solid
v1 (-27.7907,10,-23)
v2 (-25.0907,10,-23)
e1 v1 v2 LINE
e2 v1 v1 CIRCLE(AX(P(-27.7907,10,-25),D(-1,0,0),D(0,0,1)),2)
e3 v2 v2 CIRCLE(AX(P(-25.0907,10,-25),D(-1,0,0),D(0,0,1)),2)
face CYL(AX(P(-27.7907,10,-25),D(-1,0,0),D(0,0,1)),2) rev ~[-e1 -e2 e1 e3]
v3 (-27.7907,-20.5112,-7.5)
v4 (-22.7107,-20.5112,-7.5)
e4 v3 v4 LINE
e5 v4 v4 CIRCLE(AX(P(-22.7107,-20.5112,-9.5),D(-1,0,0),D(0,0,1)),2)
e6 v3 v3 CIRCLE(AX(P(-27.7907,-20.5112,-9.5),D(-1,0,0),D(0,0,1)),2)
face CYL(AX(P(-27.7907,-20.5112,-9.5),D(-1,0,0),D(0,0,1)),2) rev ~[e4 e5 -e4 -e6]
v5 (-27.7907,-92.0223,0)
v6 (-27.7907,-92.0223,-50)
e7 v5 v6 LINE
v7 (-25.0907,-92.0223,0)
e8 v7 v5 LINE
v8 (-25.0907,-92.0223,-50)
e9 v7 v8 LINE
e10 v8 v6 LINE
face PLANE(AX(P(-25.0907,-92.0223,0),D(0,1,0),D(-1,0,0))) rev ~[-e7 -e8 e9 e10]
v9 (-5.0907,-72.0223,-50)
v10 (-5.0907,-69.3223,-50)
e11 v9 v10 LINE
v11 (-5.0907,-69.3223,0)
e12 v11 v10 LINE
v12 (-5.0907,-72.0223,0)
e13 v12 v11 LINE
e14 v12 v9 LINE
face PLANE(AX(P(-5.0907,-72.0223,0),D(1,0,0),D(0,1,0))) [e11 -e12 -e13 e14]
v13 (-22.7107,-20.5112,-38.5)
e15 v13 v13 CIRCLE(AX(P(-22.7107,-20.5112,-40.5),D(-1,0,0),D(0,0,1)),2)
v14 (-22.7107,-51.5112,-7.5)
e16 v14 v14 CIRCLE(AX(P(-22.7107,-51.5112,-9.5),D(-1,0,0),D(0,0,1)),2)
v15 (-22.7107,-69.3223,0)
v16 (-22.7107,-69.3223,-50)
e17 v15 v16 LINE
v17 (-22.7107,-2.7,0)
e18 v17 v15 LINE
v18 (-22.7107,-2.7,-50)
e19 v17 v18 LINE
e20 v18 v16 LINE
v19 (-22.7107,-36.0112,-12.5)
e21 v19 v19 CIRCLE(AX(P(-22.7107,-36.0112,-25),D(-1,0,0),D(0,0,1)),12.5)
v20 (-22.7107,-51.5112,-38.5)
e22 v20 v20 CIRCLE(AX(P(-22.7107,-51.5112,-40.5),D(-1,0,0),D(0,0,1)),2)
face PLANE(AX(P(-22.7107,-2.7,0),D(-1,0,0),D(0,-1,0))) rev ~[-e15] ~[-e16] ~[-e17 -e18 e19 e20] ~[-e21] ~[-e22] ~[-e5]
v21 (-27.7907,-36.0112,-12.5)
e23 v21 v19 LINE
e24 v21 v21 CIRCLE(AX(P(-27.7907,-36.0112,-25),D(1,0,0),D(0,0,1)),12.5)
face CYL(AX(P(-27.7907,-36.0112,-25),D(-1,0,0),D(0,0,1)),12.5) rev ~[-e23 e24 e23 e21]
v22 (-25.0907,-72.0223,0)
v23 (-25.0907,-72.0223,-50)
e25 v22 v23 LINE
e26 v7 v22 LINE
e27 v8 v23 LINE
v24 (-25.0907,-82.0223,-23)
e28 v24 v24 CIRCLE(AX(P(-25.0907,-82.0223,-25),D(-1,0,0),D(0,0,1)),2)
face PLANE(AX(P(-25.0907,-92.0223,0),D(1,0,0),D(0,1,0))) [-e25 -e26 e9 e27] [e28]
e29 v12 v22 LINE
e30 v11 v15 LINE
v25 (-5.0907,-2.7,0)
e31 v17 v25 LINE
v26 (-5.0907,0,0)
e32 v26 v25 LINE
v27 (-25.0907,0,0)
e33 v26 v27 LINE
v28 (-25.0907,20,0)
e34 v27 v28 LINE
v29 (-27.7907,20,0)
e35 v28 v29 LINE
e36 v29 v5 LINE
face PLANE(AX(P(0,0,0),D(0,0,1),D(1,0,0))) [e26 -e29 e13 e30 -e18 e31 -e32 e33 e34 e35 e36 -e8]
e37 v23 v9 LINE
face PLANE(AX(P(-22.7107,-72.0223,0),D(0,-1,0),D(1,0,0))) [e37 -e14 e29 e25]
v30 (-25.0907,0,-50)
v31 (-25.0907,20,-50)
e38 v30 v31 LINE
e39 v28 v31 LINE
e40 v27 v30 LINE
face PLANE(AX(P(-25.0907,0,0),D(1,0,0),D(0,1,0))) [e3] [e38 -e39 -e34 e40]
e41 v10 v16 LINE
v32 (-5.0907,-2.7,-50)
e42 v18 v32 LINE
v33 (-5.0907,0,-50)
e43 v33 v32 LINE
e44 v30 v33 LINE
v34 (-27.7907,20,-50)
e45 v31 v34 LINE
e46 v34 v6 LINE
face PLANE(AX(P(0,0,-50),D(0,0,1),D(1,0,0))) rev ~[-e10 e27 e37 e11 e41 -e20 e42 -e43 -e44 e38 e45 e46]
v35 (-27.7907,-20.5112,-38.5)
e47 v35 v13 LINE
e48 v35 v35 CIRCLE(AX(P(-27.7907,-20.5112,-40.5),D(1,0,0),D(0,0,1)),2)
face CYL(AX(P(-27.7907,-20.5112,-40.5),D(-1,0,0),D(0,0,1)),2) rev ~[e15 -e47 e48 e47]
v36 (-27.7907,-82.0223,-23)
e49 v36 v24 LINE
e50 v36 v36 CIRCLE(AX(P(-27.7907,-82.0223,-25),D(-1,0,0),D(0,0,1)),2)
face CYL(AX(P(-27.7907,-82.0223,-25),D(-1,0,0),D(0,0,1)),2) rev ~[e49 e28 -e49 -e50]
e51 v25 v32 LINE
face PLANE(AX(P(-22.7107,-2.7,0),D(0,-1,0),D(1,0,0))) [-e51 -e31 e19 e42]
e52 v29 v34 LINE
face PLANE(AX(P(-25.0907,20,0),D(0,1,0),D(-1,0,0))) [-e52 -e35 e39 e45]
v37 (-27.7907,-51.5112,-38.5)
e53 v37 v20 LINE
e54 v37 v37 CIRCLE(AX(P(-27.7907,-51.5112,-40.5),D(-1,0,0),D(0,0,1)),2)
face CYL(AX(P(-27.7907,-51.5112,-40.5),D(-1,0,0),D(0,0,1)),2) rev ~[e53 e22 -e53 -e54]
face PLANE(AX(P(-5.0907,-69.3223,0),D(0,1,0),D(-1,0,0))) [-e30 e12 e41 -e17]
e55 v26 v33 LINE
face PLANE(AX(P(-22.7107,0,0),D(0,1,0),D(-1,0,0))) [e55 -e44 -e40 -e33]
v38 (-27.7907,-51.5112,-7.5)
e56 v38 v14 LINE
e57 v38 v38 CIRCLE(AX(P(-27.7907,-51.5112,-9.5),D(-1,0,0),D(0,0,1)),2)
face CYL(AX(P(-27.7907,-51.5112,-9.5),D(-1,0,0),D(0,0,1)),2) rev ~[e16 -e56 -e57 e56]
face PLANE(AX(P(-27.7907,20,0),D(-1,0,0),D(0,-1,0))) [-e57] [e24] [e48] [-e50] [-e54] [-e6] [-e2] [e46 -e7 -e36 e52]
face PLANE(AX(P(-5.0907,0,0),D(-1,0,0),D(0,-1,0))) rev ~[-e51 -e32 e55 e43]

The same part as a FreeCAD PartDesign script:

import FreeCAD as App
import Part
import Sketcher

V = App.Vector


def add_polygon(sketch, points):
    """Adds a closed chain of lines whose ends are joined by coincident constraints."""
    first, n = sketch.GeometryCount, len(points)
    for a, b in zip(points, points[1:] + points[:1]):
        sketch.addGeometry(Part.LineSegment(App.Vector(*a, 0), App.Vector(*b, 0)), False)
    for i in range(n):
        sketch.addConstraint(Sketcher.Constraint("Coincident", first + i, 2, first + (i + 1) % n, 1))

doc = App.newDocument("Part")
params = doc.addObject("Spreadsheet::Sheet", "Params")
for row, (alias, value) in enumerate([
    ("sketch1_width", "20 mm"),
    ("sketch1_width2", "2.7 mm"),
    ("sketch1_width3", "17.62 mm"),
    ("pad1_length", "50 mm"),
    ("sketch2_diameter", "25 mm"),
    ("sketch2_diameter2", "4 mm"),
    ("pocket1_length", "50 mm"),
    ("sketch3_diameter", "4 mm"),
    ("pocket2_length", "50 mm"),
], start=1):
    params.set(f"A{row}", alias)
    params.set(f"B{row}", "=" + value)
    params.setAlias(f"B{row}", alias)

body = doc.addObject("PartDesign::Body", "Body")

sketch1 = doc.addObject("Sketcher::SketchObject", "Sketch")
body.addObject(sketch1)
sketch1.AttachmentSupport = (doc.XY_Plane, [""])
sketch1.MapMode = "FlatFace"
add_polygon(sketch1, [(-5.1, -72), (-5.1, -69.3), (-22.7, -69.3), (-22.7, -2.7), (-5.1, -2.7), (-5.1, 0), (-25.1, 0), (-25.1, 20), (-27.8, 20), (-27.8, -92), (-25.1, -92), (-25.1, -72)])
sketch1.addConstraint(Sketcher.Constraint("Vertical", 0))
sketch1.addConstraint(Sketcher.Constraint("Horizontal", 1))
sketch1.addConstraint(Sketcher.Constraint("Vertical", 2))
sketch1.addConstraint(Sketcher.Constraint("Horizontal", 3))
sketch1.addConstraint(Sketcher.Constraint("Vertical", 4))
sketch1.addConstraint(Sketcher.Constraint("Horizontal", 5))
sketch1.addConstraint(Sketcher.Constraint("Vertical", 6))
sketch1.addConstraint(Sketcher.Constraint("Horizontal", 7))
sketch1.addConstraint(Sketcher.Constraint("Vertical", 8))
sketch1.addConstraint(Sketcher.Constraint("Horizontal", 9))
sketch1.addConstraint(Sketcher.Constraint("Vertical", 10))
sketch1.addConstraint(Sketcher.Constraint("Horizontal", 11))
sketch1.addConstraint(Sketcher.Constraint("PointOnObject", 4, 2, -1))
sketch1.addConstraint(Sketcher.Constraint("Vertical", 0, 2, 3, 2))
sketch1.addConstraint(Sketcher.Constraint("Vertical", 6, 2, 9, 2))
sketch1.addConstraint(Sketcher.Constraint("Equal", 9, 0))
sketch1.addConstraint(Sketcher.Constraint("Equal", 0, 4))
sketch1.addConstraint(Sketcher.Constraint("Equal", 11, 6))
sketch1.addConstraint(Sketcher.Constraint("Equal", 6, 10))
sketch1.addConstraint(Sketcher.Constraint("DistanceX", 5, 2, 5, 1, 20.0))
sketch1.addConstraint(Sketcher.Constraint("DistanceX", 7, 2, 7, 1, 2.7))
sketch1.addConstraint(Sketcher.Constraint("DistanceX", 1, 2, 1, 1, 17.62))
sketch1.addConstraint(Sketcher.Constraint("DistanceY", 2, 1, 2, 2, 66.6223))
sketch1.addConstraint(Sketcher.Constraint("DistanceX", 0, 2, -1, 1, 5.0907))
sketch1.setExpression("Constraints[31]", "Params.sketch1_width")
sketch1.setExpression("Constraints[32]", "Params.sketch1_width2")
sketch1.setExpression("Constraints[33]", "Params.sketch1_width3")
pad1 = doc.addObject("PartDesign::Pad", "Pad")
body.addObject(pad1)
pad1.Profile = sketch1
pad1.setExpression("Length", "Params.pad1_length")
pad1.Reversed = True

sketch2 = doc.addObject("Sketcher::SketchObject", "Sketch001")
body.addObject(sketch2)
sketch2.AttachmentSupport = (doc.YZ_Plane, [""])
sketch2.MapMode = "FlatFace"
sketch2.AttachmentOffset = App.Placement(V(0, 0, -27.7907), App.Rotation())
sketch2.addGeometry(Part.Circle(V(-36, -25, 0), V(0, 0, 1), 12.5), False)
sketch2.addGeometry(Part.Circle(V(-20.5, -40.5, 0), V(0, 0, 1), 2), False)
sketch2.addGeometry(Part.Circle(V(-51.5, -40.5, 0), V(0, 0, 1), 2), False)
sketch2.addGeometry(Part.Circle(V(-20.5, -9.5, 0), V(0, 0, 1), 2), False)
sketch2.addGeometry(Part.Circle(V(-51.5, -9.5, 0), V(0, 0, 1), 2), False)
sketch2.addConstraint(Sketcher.Constraint("Equal", 1, 2))
sketch2.addConstraint(Sketcher.Constraint("Equal", 2, 3))
sketch2.addConstraint(Sketcher.Constraint("Equal", 3, 4))
sketch2.addConstraint(Sketcher.Constraint("Horizontal", 1, 3, 2, 3))
sketch2.addConstraint(Sketcher.Constraint("Horizontal", 3, 3, 4, 3))
sketch2.addConstraint(Sketcher.Constraint("Vertical", 1, 3, 3, 3))
sketch2.addConstraint(Sketcher.Constraint("Vertical", 2, 3, 4, 3))
sketch2.addConstraint(Sketcher.Constraint("Diameter", 0, 25.0))
sketch2.addConstraint(Sketcher.Constraint("Diameter", 1, 4.0))
sketch2.addConstraint(Sketcher.Constraint("DistanceY", 0, 3, -1, 1, 25.0))
sketch2.addConstraint(Sketcher.Constraint("DistanceX", 2, 3, 1, 3, 31.0))
sketch2.addConstraint(Sketcher.Constraint("DistanceY", 1, 3, 3, 3, 31.0))
sketch2.addConstraint(Sketcher.Constraint("DistanceX", 0, 3, 1, 3, 15.5))
sketch2.addConstraint(Sketcher.Constraint("DistanceY", 1, 3, 0, 3, 15.5))
sketch2.addConstraint(Sketcher.Constraint("DistanceX", 0, 3, -1, 1, 36.0112))
sketch2.setExpression("Constraints[7]", "Params.sketch2_diameter")
sketch2.setExpression("Constraints[8]", "Params.sketch2_diameter2")
pocket1 = doc.addObject("PartDesign::Pocket", "Pocket")
body.addObject(pocket1)
pocket1.Profile = sketch2
pocket1.setExpression("Length", "Params.pocket1_length")
pocket1.Reversed = True

sketch3 = doc.addObject("Sketcher::SketchObject", "Sketch002")
body.addObject(sketch3)
sketch3.AttachmentSupport = (doc.YZ_Plane, [""])
sketch3.MapMode = "FlatFace"
sketch3.AttachmentOffset = App.Placement(V(0, 0, -27.7907), App.Rotation())
sketch3.addGeometry(Part.Circle(V(10, -25, 0), V(0, 0, 1), 2), False)
sketch3.addGeometry(Part.Circle(V(-82, -25, 0), V(0, 0, 1), 2), False)
sketch3.addConstraint(Sketcher.Constraint("Equal", 0, 1))
sketch3.addConstraint(Sketcher.Constraint("Horizontal", 0, 3, 1, 3))
sketch3.addConstraint(Sketcher.Constraint("Diameter", 0, 4.0))
sketch3.addConstraint(Sketcher.Constraint("DistanceX", -1, 1, 0, 3, 10.0))
sketch3.addConstraint(Sketcher.Constraint("DistanceY", 0, 3, -1, 1, 25.0))
sketch3.addConstraint(Sketcher.Constraint("DistanceX", 1, 3, -1, 1, 82.0223))
sketch3.setExpression("Constraints[2]", "Params.sketch3_diameter")
pocket2 = doc.addObject("PartDesign::Pocket", "Pocket001")
body.addObject(pocket2)
pocket2.Profile = sketch3
pocket2.setExpression("Length", "Params.pocket2_length")
pocket2.Reversed = True

doc.recompute()
